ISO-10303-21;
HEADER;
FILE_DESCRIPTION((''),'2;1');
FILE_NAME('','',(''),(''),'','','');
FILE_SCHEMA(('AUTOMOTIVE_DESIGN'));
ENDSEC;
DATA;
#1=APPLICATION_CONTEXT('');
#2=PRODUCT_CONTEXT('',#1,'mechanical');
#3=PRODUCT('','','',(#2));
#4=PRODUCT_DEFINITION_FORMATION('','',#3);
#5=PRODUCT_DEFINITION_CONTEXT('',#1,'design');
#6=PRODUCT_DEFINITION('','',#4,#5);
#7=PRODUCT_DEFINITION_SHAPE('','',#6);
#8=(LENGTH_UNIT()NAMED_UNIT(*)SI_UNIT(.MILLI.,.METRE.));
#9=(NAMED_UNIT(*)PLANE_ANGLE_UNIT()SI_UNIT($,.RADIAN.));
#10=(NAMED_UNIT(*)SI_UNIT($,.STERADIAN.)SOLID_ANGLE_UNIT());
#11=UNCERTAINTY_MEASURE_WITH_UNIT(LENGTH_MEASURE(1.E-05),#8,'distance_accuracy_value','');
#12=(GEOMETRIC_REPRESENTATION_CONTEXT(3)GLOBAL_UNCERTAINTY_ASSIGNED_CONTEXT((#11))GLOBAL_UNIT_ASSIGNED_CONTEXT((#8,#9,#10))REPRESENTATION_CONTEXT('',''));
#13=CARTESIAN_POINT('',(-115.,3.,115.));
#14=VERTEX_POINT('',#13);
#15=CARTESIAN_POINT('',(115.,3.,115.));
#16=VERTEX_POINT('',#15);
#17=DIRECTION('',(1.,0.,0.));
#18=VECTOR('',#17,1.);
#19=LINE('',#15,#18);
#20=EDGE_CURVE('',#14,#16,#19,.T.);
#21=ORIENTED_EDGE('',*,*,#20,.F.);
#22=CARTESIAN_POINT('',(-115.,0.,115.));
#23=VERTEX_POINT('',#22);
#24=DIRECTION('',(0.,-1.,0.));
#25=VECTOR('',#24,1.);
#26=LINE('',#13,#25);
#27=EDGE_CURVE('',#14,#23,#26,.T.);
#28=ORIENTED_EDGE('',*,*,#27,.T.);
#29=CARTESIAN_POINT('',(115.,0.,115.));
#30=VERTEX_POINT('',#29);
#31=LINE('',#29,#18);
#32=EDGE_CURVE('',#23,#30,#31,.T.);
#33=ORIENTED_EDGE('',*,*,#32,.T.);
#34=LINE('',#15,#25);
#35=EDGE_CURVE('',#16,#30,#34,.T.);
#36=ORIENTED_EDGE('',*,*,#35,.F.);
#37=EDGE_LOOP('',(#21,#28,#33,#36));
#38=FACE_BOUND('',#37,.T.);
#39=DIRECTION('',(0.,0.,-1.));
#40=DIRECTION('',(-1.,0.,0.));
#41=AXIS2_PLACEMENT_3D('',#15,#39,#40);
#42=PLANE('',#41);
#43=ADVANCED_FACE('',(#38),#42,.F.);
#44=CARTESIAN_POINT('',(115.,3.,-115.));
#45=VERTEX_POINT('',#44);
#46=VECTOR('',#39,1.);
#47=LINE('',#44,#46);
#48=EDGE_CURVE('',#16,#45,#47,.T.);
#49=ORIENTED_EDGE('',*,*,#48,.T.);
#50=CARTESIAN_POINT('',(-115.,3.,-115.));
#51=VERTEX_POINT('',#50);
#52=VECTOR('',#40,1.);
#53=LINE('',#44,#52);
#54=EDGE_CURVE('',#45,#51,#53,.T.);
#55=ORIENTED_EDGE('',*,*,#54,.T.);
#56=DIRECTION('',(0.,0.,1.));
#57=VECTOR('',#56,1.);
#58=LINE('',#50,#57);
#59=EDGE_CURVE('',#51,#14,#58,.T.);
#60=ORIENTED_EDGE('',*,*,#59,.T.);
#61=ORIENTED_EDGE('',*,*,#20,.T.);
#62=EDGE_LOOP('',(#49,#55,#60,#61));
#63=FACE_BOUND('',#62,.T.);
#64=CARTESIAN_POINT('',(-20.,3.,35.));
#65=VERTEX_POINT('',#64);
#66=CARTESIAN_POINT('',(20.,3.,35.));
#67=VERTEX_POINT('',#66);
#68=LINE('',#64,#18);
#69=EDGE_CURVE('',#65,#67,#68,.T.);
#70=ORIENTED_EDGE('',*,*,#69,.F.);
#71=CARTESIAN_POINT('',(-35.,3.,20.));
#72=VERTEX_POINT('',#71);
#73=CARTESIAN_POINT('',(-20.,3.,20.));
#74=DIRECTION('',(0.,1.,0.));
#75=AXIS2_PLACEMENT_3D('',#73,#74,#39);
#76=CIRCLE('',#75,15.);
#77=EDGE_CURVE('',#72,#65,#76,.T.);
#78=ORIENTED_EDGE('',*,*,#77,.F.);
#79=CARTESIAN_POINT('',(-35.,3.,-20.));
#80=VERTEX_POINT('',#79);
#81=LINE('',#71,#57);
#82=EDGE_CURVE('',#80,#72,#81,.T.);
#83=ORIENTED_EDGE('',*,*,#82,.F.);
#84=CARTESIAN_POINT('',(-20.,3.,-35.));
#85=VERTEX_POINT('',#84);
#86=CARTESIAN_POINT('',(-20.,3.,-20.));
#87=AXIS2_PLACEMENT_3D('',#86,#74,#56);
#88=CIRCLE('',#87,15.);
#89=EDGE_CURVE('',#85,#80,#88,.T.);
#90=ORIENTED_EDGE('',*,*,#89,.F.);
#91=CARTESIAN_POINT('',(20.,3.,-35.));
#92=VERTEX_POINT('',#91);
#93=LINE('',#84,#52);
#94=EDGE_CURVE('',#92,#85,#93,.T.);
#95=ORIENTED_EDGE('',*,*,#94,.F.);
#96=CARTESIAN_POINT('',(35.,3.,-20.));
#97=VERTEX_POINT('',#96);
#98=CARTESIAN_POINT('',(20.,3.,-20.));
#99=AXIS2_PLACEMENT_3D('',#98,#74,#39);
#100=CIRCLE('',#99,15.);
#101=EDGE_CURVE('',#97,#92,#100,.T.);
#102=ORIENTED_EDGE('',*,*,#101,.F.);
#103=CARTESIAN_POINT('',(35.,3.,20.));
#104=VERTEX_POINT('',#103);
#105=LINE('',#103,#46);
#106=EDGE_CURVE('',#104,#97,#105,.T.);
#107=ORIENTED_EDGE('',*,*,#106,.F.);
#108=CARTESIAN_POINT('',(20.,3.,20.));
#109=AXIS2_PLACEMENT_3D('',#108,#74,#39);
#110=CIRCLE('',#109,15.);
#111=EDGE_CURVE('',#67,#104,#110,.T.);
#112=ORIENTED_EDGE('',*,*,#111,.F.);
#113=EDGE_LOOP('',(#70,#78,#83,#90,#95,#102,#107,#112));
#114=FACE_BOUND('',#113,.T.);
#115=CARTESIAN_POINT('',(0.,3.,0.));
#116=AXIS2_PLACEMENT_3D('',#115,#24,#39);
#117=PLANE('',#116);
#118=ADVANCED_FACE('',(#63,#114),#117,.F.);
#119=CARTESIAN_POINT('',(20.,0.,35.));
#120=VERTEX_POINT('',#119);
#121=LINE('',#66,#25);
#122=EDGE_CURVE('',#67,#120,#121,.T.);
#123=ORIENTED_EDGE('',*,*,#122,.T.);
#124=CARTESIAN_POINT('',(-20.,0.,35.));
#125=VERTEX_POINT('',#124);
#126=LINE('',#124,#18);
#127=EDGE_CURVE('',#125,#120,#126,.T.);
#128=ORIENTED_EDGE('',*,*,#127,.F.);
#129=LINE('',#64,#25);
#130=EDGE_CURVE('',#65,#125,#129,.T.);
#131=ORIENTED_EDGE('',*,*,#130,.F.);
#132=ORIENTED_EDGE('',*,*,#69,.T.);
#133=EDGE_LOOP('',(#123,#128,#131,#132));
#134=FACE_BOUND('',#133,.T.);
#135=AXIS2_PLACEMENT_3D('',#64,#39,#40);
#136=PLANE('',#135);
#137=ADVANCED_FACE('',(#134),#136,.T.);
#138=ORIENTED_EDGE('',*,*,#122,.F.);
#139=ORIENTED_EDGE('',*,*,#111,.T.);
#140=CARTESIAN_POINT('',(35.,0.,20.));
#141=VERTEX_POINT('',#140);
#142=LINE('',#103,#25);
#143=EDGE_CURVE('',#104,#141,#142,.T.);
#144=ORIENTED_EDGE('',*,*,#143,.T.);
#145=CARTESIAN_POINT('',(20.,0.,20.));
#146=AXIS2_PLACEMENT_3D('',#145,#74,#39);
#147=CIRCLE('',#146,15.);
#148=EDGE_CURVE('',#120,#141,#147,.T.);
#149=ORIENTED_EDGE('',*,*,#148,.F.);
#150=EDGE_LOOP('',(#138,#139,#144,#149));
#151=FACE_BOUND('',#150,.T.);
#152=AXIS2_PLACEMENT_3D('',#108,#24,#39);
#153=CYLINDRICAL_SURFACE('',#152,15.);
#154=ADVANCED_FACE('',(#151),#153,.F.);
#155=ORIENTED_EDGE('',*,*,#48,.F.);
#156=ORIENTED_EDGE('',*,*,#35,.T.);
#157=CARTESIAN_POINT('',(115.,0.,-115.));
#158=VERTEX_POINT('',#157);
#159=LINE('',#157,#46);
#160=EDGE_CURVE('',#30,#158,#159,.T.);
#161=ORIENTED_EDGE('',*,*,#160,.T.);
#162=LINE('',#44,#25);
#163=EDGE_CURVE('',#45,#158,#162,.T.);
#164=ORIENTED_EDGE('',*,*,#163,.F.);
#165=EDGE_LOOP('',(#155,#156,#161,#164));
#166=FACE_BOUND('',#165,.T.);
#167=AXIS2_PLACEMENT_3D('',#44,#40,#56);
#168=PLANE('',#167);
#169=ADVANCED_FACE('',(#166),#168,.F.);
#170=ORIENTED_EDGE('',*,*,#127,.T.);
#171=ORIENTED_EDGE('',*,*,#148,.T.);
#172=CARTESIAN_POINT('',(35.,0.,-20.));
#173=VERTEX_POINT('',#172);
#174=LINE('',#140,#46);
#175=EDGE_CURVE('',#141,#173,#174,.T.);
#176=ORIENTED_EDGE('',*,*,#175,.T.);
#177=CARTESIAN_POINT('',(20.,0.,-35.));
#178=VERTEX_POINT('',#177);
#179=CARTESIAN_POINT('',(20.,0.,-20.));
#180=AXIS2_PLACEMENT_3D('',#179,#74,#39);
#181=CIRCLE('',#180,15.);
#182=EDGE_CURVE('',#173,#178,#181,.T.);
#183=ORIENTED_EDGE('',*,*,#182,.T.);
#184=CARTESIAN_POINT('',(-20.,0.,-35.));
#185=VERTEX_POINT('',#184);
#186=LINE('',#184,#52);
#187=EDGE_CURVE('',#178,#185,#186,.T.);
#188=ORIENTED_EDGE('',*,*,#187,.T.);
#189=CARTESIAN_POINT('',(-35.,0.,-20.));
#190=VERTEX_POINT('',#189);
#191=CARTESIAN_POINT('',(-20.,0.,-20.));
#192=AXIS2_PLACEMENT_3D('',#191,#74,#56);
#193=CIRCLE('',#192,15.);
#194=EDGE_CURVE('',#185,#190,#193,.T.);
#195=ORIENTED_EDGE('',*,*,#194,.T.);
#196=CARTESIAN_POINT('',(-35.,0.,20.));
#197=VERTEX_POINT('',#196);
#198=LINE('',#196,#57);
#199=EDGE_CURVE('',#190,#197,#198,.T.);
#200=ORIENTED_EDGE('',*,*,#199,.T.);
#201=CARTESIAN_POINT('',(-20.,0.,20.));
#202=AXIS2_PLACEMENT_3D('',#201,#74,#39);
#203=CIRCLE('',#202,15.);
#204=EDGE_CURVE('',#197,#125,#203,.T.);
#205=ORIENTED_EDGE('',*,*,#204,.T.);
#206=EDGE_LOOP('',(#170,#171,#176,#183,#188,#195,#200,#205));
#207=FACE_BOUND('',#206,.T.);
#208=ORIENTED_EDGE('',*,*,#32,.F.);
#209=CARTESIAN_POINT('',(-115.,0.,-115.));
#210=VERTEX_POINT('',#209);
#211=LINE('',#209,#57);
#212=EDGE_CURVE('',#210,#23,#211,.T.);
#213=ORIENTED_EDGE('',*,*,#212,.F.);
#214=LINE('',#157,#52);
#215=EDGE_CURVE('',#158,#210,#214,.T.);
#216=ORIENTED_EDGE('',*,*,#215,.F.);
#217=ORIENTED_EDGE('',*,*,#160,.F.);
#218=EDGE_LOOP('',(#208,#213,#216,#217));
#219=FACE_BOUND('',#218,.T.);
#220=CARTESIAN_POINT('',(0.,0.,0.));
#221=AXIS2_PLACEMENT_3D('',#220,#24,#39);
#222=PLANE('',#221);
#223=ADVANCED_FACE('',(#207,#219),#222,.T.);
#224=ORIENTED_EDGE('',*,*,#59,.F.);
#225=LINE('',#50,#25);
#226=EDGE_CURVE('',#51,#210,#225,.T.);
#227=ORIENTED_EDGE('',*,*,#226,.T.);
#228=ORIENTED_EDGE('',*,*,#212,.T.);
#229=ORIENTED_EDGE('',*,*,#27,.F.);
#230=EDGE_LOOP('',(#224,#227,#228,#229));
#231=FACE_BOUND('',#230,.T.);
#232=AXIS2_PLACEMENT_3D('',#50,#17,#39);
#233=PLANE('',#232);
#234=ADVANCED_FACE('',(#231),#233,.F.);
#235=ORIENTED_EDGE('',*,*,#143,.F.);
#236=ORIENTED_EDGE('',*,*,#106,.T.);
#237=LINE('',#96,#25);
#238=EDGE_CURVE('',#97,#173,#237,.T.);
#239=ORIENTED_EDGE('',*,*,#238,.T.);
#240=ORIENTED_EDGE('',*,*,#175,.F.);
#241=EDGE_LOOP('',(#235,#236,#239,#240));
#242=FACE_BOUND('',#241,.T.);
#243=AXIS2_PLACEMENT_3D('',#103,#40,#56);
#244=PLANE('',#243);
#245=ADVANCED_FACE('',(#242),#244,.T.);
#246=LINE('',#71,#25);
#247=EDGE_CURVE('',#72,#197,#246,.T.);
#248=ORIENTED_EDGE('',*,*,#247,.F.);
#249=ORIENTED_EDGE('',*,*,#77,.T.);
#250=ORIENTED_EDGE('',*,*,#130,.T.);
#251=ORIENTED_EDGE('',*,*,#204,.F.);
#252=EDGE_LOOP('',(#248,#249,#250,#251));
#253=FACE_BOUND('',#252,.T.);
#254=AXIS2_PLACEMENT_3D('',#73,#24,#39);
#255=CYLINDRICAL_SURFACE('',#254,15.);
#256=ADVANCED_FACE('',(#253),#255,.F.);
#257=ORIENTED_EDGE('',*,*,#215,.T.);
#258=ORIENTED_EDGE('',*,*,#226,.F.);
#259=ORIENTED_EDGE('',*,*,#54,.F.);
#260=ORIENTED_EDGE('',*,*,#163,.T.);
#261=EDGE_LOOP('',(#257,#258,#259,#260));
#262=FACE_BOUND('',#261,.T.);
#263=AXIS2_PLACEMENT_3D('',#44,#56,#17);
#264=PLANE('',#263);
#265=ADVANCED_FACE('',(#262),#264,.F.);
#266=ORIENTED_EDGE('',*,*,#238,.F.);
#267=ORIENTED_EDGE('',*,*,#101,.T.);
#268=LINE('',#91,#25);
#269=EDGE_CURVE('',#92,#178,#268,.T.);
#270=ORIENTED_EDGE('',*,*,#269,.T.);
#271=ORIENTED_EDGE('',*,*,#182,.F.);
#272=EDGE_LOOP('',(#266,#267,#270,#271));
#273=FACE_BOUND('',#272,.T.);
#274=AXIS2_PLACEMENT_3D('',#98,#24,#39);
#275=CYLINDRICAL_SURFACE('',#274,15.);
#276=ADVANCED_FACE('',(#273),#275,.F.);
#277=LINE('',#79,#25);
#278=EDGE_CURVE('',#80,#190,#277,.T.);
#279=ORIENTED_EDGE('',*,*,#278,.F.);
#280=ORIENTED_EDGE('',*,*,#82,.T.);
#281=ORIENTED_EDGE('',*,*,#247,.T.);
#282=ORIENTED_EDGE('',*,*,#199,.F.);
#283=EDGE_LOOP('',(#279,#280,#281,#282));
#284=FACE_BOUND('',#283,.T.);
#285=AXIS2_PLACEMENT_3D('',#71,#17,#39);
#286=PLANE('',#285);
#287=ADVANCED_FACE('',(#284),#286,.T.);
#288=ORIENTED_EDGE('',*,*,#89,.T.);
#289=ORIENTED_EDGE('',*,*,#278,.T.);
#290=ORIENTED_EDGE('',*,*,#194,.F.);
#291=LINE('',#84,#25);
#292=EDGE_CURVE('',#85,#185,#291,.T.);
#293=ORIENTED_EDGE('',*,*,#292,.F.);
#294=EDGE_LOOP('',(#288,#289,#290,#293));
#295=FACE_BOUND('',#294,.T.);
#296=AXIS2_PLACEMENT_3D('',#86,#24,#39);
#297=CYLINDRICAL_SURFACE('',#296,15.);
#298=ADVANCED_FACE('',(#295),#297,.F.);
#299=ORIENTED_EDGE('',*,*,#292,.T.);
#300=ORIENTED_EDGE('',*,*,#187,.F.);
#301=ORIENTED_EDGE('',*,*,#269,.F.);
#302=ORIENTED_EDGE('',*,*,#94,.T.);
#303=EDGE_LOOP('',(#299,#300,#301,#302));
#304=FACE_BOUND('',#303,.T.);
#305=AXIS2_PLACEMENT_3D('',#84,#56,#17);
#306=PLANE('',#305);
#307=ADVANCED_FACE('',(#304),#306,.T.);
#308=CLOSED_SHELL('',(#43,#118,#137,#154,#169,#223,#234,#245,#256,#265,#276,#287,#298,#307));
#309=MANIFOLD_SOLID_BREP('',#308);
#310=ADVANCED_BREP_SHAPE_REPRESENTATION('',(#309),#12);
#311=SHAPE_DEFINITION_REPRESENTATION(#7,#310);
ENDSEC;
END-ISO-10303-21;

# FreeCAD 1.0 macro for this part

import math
import FreeCAD as App
import Part
import Sketcher
from FreeCAD import Vector

doc = App.newDocument("Part")
body = doc.addObject("PartDesign::Body", "Body")

sketch1 = body.newObject("Sketcher::SketchObject", "Sketch")
sketch1.AttachmentSupport = (doc.getObject("XZ_Plane"), [""])
sketch1.MapMode = "FlatFace"
sketch1.addGeometry([
    Part.LineSegment(Vector(-115, -115, 0), Vector(-115, 115, 0)),
    Part.LineSegment(Vector(-115, 115, 0), Vector(115, 115, 0)),
    Part.LineSegment(Vector(115, 115, 0), Vector(115, -115, 0)),
    Part.LineSegment(Vector(115, -115, 0), Vector(-115, -115, 0)),
    Part.LineSegment(Vector(20, 35, 0), Vector(-20, 35, 0)),
    Part.ArcOfCircle(Part.Circle(Vector(-20, 20, 0), Vector(0, 0, 1), 15), math.radians(90), math.radians(180)),
    Part.LineSegment(Vector(-35, 20, 0), Vector(-35, -20, 0)),
    Part.ArcOfCircle(Part.Circle(Vector(-20, -20, 0), Vector(0, 0, 1), 15), math.radians(180), math.radians(270)),
    Part.LineSegment(Vector(-20, -35, 0), Vector(20, -35, 0)),
    Part.ArcOfCircle(Part.Circle(Vector(20, -20, 0), Vector(0, 0, 1), 15), math.radians(-90), math.radians(0)),
    Part.LineSegment(Vector(35, -20, 0), Vector(35, 20, 0)),
    Part.ArcOfCircle(Part.Circle(Vector(20, 20, 0), Vector(0, 0, 1), 15), math.radians(0), math.radians(90)),
], False)
sketch1.addConstraint([
    Sketcher.Constraint("Coincident", 0, 2, 1, 1),
    Sketcher.Constraint("Coincident", 1, 2, 2, 1),
    Sketcher.Constraint("Coincident", 2, 2, 3, 1),
    Sketcher.Constraint("Coincident", 3, 2, 0, 1),
    Sketcher.Constraint("Tangent", 4, 2, 5, 1),
    Sketcher.Constraint("Tangent", 5, 2, 6, 1),
    Sketcher.Constraint("Tangent", 6, 2, 7, 1),
    Sketcher.Constraint("Tangent", 7, 2, 8, 1),
    Sketcher.Constraint("Tangent", 8, 2, 9, 1),
    Sketcher.Constraint("Tangent", 9, 2, 10, 1),
    Sketcher.Constraint("Tangent", 10, 2, 11, 1),
    Sketcher.Constraint("Tangent", 11, 2, 4, 1),
    Sketcher.Constraint("Vertical", 0),
    Sketcher.Constraint("Horizontal", 1),
    Sketcher.Constraint("Vertical", 2),
    Sketcher.Constraint("Horizontal", 3),
    Sketcher.Constraint("Horizontal", 4),
    Sketcher.Constraint("Vertical", 6),
    Sketcher.Constraint("Horizontal", 8),
    Sketcher.Constraint("Vertical", 10),
    Sketcher.Constraint("Equal", 5, 7),
    Sketcher.Constraint("Equal", 7, 9),
    Sketcher.Constraint("Equal", 9, 11),
    Sketcher.Constraint("Symmetric", 5, 3, 9, 3, -1, 1),
    Sketcher.Constraint("Symmetric", 0, 2, 2, 2, -1, 1),
    Sketcher.Constraint("Equal", 3, 0),
    Sketcher.Constraint("Equal", 8, 6),
    Sketcher.Constraint("Radius", 5, 15.0),
    Sketcher.Constraint("DistanceX", 1, 1, 1, 2, 230.0),
    Sketcher.Constraint("DistanceX", 4, 2, 4, 1, 40.0),
])
pad1 = body.newObject("PartDesign::Pad", "Pad")
pad1.Profile = sketch1
pad1.Length = 3
pad1.Reversed = True

doc.recompute()
